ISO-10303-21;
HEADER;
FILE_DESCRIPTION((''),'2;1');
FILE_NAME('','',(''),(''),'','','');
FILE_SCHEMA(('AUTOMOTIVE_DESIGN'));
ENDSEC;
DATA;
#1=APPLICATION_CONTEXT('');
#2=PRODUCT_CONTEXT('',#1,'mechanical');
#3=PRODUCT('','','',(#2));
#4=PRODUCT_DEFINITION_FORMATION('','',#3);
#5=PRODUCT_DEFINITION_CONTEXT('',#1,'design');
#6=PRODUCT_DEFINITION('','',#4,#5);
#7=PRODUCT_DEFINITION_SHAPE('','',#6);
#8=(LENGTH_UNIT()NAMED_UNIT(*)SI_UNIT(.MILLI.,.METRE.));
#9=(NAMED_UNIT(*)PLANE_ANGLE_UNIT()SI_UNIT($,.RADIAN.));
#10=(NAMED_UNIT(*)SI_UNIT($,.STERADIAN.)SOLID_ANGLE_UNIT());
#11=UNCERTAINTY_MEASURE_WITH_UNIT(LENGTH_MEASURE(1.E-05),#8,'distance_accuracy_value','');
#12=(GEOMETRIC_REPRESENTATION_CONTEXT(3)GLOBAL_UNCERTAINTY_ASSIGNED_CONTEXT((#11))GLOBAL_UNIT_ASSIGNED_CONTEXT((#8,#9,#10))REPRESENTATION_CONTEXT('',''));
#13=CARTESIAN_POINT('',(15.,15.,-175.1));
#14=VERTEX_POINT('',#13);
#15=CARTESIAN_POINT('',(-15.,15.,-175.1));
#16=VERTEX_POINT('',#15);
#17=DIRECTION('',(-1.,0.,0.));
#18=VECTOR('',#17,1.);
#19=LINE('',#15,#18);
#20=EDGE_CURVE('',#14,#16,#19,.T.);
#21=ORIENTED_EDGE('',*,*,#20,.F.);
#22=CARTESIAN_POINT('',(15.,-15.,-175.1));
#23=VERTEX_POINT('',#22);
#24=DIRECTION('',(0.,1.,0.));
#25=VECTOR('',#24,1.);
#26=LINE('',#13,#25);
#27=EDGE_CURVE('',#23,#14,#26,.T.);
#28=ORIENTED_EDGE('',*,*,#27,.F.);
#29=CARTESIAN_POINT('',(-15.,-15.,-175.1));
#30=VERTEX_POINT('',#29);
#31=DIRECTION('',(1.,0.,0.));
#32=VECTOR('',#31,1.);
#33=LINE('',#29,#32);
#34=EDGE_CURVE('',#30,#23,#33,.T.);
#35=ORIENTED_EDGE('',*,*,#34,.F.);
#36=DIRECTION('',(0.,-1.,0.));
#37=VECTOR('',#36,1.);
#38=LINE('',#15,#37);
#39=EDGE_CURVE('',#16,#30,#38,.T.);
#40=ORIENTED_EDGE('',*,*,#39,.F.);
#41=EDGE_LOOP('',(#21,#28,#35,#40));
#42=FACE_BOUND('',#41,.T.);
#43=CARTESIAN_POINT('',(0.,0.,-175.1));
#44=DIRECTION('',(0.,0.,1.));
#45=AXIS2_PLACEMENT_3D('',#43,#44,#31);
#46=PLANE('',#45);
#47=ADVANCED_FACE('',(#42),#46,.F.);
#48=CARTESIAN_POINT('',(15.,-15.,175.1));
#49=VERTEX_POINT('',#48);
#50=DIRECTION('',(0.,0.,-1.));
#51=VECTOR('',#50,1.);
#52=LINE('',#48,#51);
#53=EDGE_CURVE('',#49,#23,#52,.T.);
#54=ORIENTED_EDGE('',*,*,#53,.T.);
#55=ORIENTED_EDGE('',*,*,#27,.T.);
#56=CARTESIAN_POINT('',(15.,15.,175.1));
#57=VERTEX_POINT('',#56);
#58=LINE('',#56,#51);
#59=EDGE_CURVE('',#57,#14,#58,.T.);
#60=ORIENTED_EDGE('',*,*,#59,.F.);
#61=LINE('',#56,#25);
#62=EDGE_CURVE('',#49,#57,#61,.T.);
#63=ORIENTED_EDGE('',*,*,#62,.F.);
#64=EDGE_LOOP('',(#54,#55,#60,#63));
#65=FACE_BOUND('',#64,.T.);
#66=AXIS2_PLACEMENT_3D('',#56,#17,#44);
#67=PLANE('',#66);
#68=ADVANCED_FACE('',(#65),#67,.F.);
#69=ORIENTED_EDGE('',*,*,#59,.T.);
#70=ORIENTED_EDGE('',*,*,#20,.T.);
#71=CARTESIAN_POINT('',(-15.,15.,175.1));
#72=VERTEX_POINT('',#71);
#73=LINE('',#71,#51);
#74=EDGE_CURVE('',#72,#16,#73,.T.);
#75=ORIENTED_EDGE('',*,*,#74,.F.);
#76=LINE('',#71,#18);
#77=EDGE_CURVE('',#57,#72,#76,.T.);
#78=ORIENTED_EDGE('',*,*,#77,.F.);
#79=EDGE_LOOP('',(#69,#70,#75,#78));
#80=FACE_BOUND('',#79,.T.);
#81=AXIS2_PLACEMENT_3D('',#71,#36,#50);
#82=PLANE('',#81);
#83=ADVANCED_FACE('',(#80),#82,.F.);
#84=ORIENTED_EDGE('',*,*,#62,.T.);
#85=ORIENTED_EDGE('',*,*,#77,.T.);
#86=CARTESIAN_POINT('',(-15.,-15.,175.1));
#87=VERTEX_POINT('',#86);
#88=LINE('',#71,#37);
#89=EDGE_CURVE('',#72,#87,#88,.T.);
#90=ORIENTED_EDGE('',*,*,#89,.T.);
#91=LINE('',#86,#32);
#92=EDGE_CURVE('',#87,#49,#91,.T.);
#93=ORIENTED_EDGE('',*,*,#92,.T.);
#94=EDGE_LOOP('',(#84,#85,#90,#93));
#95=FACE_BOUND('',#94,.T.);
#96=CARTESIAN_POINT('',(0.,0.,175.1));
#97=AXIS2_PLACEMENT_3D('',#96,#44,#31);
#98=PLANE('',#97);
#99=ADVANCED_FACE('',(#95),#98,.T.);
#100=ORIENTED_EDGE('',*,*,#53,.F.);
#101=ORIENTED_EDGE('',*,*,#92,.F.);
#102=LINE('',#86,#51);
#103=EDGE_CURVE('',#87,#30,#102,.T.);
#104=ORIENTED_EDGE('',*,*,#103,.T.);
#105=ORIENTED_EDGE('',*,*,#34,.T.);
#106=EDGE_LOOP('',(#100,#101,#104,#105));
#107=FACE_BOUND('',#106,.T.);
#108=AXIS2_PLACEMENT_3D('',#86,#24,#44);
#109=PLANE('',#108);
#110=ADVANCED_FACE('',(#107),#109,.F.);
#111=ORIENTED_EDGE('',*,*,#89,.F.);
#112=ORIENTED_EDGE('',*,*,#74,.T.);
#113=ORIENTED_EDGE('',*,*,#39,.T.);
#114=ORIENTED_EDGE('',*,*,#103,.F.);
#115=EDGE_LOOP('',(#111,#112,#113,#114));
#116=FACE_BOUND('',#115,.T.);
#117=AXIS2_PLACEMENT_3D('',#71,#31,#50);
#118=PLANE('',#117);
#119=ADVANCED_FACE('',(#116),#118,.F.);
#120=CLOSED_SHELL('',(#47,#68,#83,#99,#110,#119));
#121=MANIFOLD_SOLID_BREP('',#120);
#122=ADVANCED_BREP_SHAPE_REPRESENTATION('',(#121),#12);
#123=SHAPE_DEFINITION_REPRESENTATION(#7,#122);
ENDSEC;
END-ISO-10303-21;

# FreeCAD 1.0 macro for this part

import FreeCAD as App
import Part
import Sketcher
from FreeCAD import Vector

doc = App.newDocument("Part")
body = doc.addObject("PartDesign::Body", "Body")

# Sketch on XY plane
sketch1 = body.newObject("Sketcher::SketchObject", "Sketch")
sketch1.AttachmentSupport = (doc.getObject("XY_Plane"), [""])
sketch1.MapMode = "FlatFace"
sketch1.addGeometry([
    Part.LineSegment(Vector(-15, 15, 0), Vector(-15, -15, 0)),
    Part.LineSegment(Vector(-15, -15, 0), Vector(15, -15, 0)),
    Part.LineSegment(Vector(15, -15, 0), Vector(15, 15, 0)),
    Part.LineSegment(Vector(15, 15, 0), Vector(-15, 15, 0)),
], False)
sketch1.addConstraint([
    Sketcher.Constraint("Coincident", 0, 2, 1, 1),
    Sketcher.Constraint("Coincident", 1, 2, 2, 1),
    Sketcher.Constraint("Coincident", 2, 2, 3, 1),
    Sketcher.Constraint("Coincident", 3, 2, 0, 1),
    Sketcher.Constraint("Vertical", 0),
    Sketcher.Constraint("Horizontal", 1),
    Sketcher.Constraint("Vertical", 2),
    Sketcher.Constraint("Horizontal", 3),
    Sketcher.Constraint("Symmetric", 0, 2, 2, 2, -1, 1),
    Sketcher.Constraint("Equal", 3, 0),
    Sketcher.Constraint("DistanceX", 1, 1, 1, 2, 30.0),
])
pad1 = body.newObject("PartDesign::Pad", "Pad")
pad1.Profile = sketch1
pad1.Length = 350.2
pad1.Midplane = True

doc.recompute()
